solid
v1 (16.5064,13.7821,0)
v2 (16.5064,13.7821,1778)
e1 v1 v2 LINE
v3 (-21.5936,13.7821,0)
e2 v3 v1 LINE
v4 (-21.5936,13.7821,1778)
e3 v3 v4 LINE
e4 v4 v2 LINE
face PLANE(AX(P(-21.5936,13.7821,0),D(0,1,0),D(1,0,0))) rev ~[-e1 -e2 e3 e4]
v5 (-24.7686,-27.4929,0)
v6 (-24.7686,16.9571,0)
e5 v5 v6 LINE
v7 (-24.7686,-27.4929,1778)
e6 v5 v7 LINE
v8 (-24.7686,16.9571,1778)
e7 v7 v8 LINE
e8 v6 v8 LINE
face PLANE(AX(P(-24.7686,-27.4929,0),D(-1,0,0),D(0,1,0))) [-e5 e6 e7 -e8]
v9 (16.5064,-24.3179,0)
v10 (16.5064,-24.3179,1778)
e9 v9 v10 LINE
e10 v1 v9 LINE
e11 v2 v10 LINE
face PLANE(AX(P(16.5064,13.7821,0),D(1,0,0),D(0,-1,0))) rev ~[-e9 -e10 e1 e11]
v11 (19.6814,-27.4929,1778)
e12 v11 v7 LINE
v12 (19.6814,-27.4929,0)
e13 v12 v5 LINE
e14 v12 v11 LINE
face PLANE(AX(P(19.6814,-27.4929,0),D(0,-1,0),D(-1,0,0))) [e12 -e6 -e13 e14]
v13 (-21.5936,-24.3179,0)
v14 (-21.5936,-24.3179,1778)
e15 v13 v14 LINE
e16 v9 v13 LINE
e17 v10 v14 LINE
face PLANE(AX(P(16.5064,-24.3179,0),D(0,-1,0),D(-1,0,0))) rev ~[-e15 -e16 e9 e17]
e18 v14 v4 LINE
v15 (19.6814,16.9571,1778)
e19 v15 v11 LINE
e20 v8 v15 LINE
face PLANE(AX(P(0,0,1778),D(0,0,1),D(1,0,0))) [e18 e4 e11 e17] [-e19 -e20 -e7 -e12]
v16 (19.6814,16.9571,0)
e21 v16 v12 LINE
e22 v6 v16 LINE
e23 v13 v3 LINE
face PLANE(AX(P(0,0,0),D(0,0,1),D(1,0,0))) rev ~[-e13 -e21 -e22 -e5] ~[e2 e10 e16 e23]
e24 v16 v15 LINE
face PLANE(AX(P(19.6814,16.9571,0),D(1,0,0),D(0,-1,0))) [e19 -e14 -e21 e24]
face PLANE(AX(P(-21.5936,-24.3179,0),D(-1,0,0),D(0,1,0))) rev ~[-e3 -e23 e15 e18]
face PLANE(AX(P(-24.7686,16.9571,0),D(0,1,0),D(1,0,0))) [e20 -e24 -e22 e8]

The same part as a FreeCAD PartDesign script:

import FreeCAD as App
import Part
import Sketcher
Q = App.Units.Quantity

doc = App.newDocument("Part")
body = doc.addObject("PartDesign::Body", "Body")

sketch1 = body.newObject("Sketcher::SketchObject", "Sketch")
sketch1.AttachmentSupport = (doc.getObject("XY_Plane"), [""])
sketch1.MapMode = "FlatFace"
sketch1.addGeometry([
    Part.LineSegment(App.Vector(20, 17, 0), App.Vector(-25, 17, 0)),
    Part.LineSegment(App.Vector(-25, 17, 0), App.Vector(-25, -27, 0)),
    Part.LineSegment(App.Vector(-25, -27, 0), App.Vector(20, -27, 0)),
    Part.LineSegment(App.Vector(20, -27, 0), App.Vector(20, 17, 0)),
    Part.LineSegment(App.Vector(-22, -24, 0), App.Vector(-22, 14, 0)),
    Part.LineSegment(App.Vector(-22, 14, 0), App.Vector(17, 14, 0)),
    Part.LineSegment(App.Vector(17, 14, 0), App.Vector(17, -24, 0)),
    Part.LineSegment(App.Vector(17, -24, 0), App.Vector(-22, -24, 0)),
], False)
sketch1.addConstraint([
    Sketcher.Constraint("Coincident", 0, 2, 1, 1),
    Sketcher.Constraint("Coincident", 1, 2, 2, 1),
    Sketcher.Constraint("Coincident", 2, 2, 3, 1),
    Sketcher.Constraint("Coincident", 3, 2, 0, 1),
    Sketcher.Constraint("Coincident", 4, 2, 5, 1),
    Sketcher.Constraint("Coincident", 5, 2, 6, 1),
    Sketcher.Constraint("Coincident", 6, 2, 7, 1),
    Sketcher.Constraint("Coincident", 7, 2, 4, 1),
    Sketcher.Constraint("Horizontal", 0),
    Sketcher.Constraint("Vertical", 1),
    Sketcher.Constraint("Horizontal", 2),
    Sketcher.Constraint("Vertical", 3),
    Sketcher.Constraint("Vertical", 4),
    Sketcher.Constraint("Horizontal", 5),
    Sketcher.Constraint("Vertical", 6),
    Sketcher.Constraint("Horizontal", 7),
    Sketcher.Constraint("Equal", 2, 1),
    Sketcher.Constraint("Equal", 7, 4),
    Sketcher.Constraint("DistanceX", 0, 2, 0, 1, Q("1.75 in")),
    Sketcher.Constraint("DistanceX", 5, 1, 5, 2, Q("1.5 in")),
    Sketcher.Constraint("DistanceX", 0, 2, 4, 2, Q("0.125 in")),
    Sketcher.Constraint("DistanceY", 4, 2, 0, 2, Q("0.125 in")),
    Sketcher.Constraint("DistanceY", -1, 1, 0, 2, Q("0.6676 in")),
    Sketcher.Constraint("DistanceX", 0, 2, -1, 1, Q("24.7686 mm")),
])
pad1 = body.newObject("PartDesign::Pad", "Pad")
pad1.Profile = sketch1
pad1.Length = Q("70 in")

doc.recompute()
